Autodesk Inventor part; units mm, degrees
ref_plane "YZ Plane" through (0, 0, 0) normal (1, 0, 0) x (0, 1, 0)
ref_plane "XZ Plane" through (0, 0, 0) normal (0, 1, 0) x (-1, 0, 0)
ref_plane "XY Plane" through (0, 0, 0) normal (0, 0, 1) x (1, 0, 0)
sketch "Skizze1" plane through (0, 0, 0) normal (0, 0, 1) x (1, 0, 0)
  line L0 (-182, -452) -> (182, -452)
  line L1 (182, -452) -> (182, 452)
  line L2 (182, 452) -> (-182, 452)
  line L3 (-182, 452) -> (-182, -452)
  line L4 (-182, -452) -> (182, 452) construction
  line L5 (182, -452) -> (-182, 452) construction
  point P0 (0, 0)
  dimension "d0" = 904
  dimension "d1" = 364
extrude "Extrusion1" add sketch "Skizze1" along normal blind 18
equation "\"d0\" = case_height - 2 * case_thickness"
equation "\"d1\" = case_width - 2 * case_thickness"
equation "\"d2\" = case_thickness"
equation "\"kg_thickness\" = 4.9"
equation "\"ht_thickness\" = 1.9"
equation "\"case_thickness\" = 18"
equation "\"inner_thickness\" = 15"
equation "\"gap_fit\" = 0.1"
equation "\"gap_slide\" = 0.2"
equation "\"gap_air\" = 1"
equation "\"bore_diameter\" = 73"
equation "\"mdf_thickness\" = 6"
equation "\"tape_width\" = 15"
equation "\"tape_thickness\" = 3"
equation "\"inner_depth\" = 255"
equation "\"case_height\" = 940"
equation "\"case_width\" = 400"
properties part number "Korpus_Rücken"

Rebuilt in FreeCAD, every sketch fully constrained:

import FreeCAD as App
import Part
import Sketcher

V = App.Vector
Q = App.Units.Quantity


def add_polygon(sketch, points):
    """Adds a closed chain of lines whose ends are joined by coincident constraints."""
    first, n = sketch.GeometryCount, len(points)
    for a, b in zip(points, points[1:] + points[:1]):
        sketch.addGeometry(Part.LineSegment(App.Vector(*a, 0), App.Vector(*b, 0)), False)
    for i in range(n):
        sketch.addConstraint(Sketcher.Constraint("Coincident", first + i, 2, first + (i + 1) % n, 1))

doc = App.newDocument("Part")
params = doc.addObject("Spreadsheet::Sheet", "Params")
for row, (alias, value) in enumerate([
    ("sketch1_width", "364 mm"),
    ("sketch1_height", "904 mm"),
    ("pad1_length", "18 mm"),
], start=1):
    params.set(f"A{row}", alias)
    params.set(f"B{row}", "=" + value)
    params.setAlias(f"B{row}", alias)

body = doc.addObject("PartDesign::Body", "Body")

sketch1 = doc.addObject("Sketcher::SketchObject", "Sketch")
body.addObject(sketch1)
sketch1.AttachmentSupport = (doc.XY_Plane, [""])
sketch1.MapMode = "FlatFace"
add_polygon(sketch1, [(-182, 452), (-182, -452), (182, -452), (182, 452)])
sketch1.addConstraint([
    Sketcher.Constraint("Vertical", 0),
    Sketcher.Constraint("Horizontal", 1),
    Sketcher.Constraint("Vertical", 2),
    Sketcher.Constraint("Horizontal", 3),
    Sketcher.Constraint("Symmetric", 0, 2, 2, 2, -1, 1),
    Sketcher.Constraint("DistanceX", 1, 1, 1, 2, Q("364 mm")),
    Sketcher.Constraint("DistanceY", 0, 2, 0, 1, Q("904 mm")),
])
sketch1.setExpression("Constraints[9]", "Params.sketch1_width")
sketch1.setExpression("Constraints[10]", "Params.sketch1_height")
pad1 = doc.addObject("PartDesign::Pad", "Pad")
body.addObject(pad1)
pad1.Profile = sketch1
pad1.setExpression("Length", "Params.pad1_length")

doc.recompute()
